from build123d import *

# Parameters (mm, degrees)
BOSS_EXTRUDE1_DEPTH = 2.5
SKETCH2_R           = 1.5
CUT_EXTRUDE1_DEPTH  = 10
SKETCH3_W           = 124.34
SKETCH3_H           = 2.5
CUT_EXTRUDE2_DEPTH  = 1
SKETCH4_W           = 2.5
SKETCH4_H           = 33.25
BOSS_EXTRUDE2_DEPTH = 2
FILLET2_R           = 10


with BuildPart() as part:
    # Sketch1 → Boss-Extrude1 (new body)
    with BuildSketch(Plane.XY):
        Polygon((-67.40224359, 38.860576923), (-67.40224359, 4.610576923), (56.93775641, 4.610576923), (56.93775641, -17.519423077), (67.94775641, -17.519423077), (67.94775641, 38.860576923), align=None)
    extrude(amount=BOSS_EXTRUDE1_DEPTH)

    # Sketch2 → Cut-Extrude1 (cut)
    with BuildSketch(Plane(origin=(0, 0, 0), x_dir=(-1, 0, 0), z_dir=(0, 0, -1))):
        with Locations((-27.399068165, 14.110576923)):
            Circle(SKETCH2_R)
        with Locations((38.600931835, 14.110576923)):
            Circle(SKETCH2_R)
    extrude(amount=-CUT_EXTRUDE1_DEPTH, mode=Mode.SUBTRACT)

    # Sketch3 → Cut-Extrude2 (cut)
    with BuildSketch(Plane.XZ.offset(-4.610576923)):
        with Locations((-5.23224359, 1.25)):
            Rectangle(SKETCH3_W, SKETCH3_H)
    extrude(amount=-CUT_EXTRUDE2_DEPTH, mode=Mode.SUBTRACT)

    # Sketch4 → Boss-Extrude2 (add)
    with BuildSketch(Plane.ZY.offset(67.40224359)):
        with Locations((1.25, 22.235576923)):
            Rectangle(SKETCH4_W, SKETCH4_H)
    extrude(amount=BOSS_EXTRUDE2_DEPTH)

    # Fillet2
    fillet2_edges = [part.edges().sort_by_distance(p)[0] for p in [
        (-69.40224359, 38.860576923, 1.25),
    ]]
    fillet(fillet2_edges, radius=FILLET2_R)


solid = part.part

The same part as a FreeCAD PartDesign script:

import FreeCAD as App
import Part
import Sketcher

V = App.Vector


def edges_at(feature, points):
    """Names of the edges that pass closest to the given points."""
    edges = feature.Shape.Edges
    near = lambda p: min(range(len(edges)), key=lambda i: edges[i].distToShape(Part.Vertex(*p))[0])
    return sorted({f"Edge{near(p) + 1}" for p in points})

doc = App.newDocument("Part")
body = doc.addObject("PartDesign::Body", "Body")

# Sketch on XY plane
sketch1 = body.newObject("Sketcher::SketchObject", "Sketch")
sketch1.AttachmentSupport = (doc.getObject("XY_Plane"), [""])
sketch1.MapMode = "FlatFace"
sketch1.addGeometry(Part.LineSegment(V(-67, 39, 0), V(-67, 5, 0)), False)
sketch1.addGeometry(Part.LineSegment(V(-67, 5, 0), V(57, 5, 0)), False)
sketch1.addGeometry(Part.LineSegment(V(57, 5, 0), V(57, -18, 0)), False)
sketch1.addGeometry(Part.LineSegment(V(57, -18, 0), V(68, -18, 0)), False)
sketch1.addGeometry(Part.LineSegment(V(68, -18, 0), V(68, 39, 0)), False)
sketch1.addGeometry(Part.LineSegment(V(68, 39, 0), V(-67, 39, 0)), False)
sketch1.addConstraint(Sketcher.Constraint("Coincident", 0, 2, 1, 1))
sketch1.addConstraint(Sketcher.Constraint("Coincident", 1, 2, 2, 1))
sketch1.addConstraint(Sketcher.Constraint("Coincident", 2, 2, 3, 1))
sketch1.addConstraint(Sketcher.Constraint("Coincident", 3, 2, 4, 1))
sketch1.addConstraint(Sketcher.Constraint("Coincident", 4, 2, 5, 1))
sketch1.addConstraint(Sketcher.Constraint("Coincident", 5, 2, 0, 1))
sketch1.addConstraint(Sketcher.Constraint("Vertical", 0))
sketch1.addConstraint(Sketcher.Constraint("Horizontal", 1))
sketch1.addConstraint(Sketcher.Constraint("Vertical", 2))
sketch1.addConstraint(Sketcher.Constraint("Horizontal", 3))
sketch1.addConstraint(Sketcher.Constraint("Vertical", 4))
sketch1.addConstraint(Sketcher.Constraint("Horizontal", 5))
sketch1.addConstraint(Sketcher.Constraint("DistanceX", 1, 1, 1, 2, 124.34))
sketch1.addConstraint(Sketcher.Constraint("DistanceX", 3, 1, 3, 2, 11.01))
sketch1.addConstraint(Sketcher.Constraint("DistanceY", 0, 2, 0, 1, 34.25))
sketch1.addConstraint(Sketcher.Constraint("DistanceY", 2, 2, 2, 1, 22.13))
sketch1.addConstraint(Sketcher.Constraint("DistanceX", 0, 2, -1, 1, 67.402244))
sketch1.addConstraint(Sketcher.Constraint("DistanceY", -1, 1, 0, 2, 4.610577))
pad1 = body.newObject("PartDesign::Pad", "Pad")
pad1.Profile = sketch1
pad1.Length = 2.5

# Sketch on XY plane
sketch2 = body.newObject("Sketcher::SketchObject", "Sketch001")
sketch2.AttachmentSupport = (doc.getObject("XY_Plane"), [""])
sketch2.MapMode = "FlatFace"
sketch2.addGeometry(Part.Circle(V(27.4, 14.1, 0), V(0, 0, 1), 1.5), False)
sketch2.addGeometry(Part.Circle(V(-38.6, 14.1, 0), V(0, 0, 1), 1.5), False)
sketch2.addConstraint(Sketcher.Constraint("Equal", 0, 1))
sketch2.addConstraint(Sketcher.Constraint("Horizontal", 0, 3, 1, 3))
sketch2.addConstraint(Sketcher.Constraint("Diameter", 0, 3.0))
sketch2.addConstraint(Sketcher.Constraint("DistanceX", 1, 3, 0, 3, 66.0))
sketch2.addConstraint(Sketcher.Constraint("DistanceX", -1, 1, 0, 3, 27.399068))
sketch2.addConstraint(Sketcher.Constraint("DistanceY", -1, 1, 0, 3, 14.110577))
pocket1 = body.newObject("PartDesign::Pocket", "Pocket")
pocket1.Profile = sketch2
pocket1.Length = 10
pocket1.Reversed = True

# Sketch on XZ plane
sketch3 = body.newObject("Sketcher::SketchObject", "Sketch002")
sketch3.AttachmentSupport = (doc.getObject("XZ_Plane"), [""])
sketch3.MapMode = "FlatFace"
sketch3.AttachmentOffset = App.Placement(V(0, 0, -4.610577), App.Rotation())
sketch3.addGeometry(Part.LineSegment(V(-67.4, 2.5, 0), V(-67.4, 0, 0)), False)
sketch3.addGeometry(Part.LineSegment(V(-67.4, 0, 0), V(56.9, 0, 0)), False)
sketch3.addGeometry(Part.LineSegment(V(56.9, 0, 0), V(56.9, 2.5, 0)), False)
sketch3.addGeometry(Part.LineSegment(V(56.9, 2.5, 0), V(-67.4, 2.5, 0)), False)
sketch3.addConstraint(Sketcher.Constraint("Coincident", 0, 2, 1, 1))
sketch3.addConstraint(Sketcher.Constraint("Coincident", 1, 2, 2, 1))
sketch3.addConstraint(Sketcher.Constraint("Coincident", 2, 2, 3, 1))
sketch3.addConstraint(Sketcher.Constraint("Coincident", 3, 2, 0, 1))
sketch3.addConstraint(Sketcher.Constraint("Vertical", 0))
sketch3.addConstraint(Sketcher.Constraint("Horizontal", 1))
sketch3.addConstraint(Sketcher.Constraint("Vertical", 2))
sketch3.addConstraint(Sketcher.Constraint("Horizontal", 3))
sketch3.addConstraint(Sketcher.Constraint("PointOnObject", 0, 2, -1))
sketch3.addConstraint(Sketcher.Constraint("DistanceY", 0, 2, 0, 1, 2.5))
sketch3.addConstraint(Sketcher.Constraint("DistanceX", 1, 1, 1, 2, 124.34))
sketch3.addConstraint(Sketcher.Constraint("DistanceX", 0, 2, -1, 1, 67.402244))
pocket2 = body.newObject("PartDesign::Pocket", "Pocket001")
pocket2.Profile = sketch3
pocket2.Length = 1

# Sketch on YZ plane
sketch4 = body.newObject("Sketcher::SketchObject", "Sketch003")
sketch4.AttachmentSupport = (doc.getObject("YZ_Plane"), [""])
sketch4.MapMode = "FlatFace"
sketch4.AttachmentOffset = App.Placement(V(0, 0, -67.402244), App.Rotation())
sketch4.addGeometry(Part.LineSegment(V(38.9, 0, 0), V(5.6, 0, 0)), False)
sketch4.addGeometry(Part.LineSegment(V(5.6, 0, 0), V(5.6, 2.5, 0)), False)
sketch4.addGeometry(Part.LineSegment(V(5.6, 2.5, 0), V(38.9, 2.5, 0)), False)
sketch4.addGeometry(Part.LineSegment(V(38.9, 2.5, 0), V(38.9, 0, 0)), False)
sketch4.addConstraint(Sketcher.Constraint("Coincident", 0, 2, 1, 1))
sketch4.addConstraint(Sketcher.Constraint("Coincident", 1, 2, 2, 1))
sketch4.addConstraint(Sketcher.Constraint("Coincident", 2, 2, 3, 1))
sketch4.addConstraint(Sketcher.Constraint("Coincident", 3, 2, 0, 1))
sketch4.addConstraint(Sketcher.Constraint("Horizontal", 0))
sketch4.addConstraint(Sketcher.Constraint("Vertical", 1))
sketch4.addConstraint(Sketcher.Constraint("Horizontal", 2))
sketch4.addConstraint(Sketcher.Constraint("Vertical", 3))
sketch4.addConstraint(Sketcher.Constraint("PointOnObject", 0, 2, -1))
sketch4.addConstraint(Sketcher.Constraint("DistanceY", 1, 1, 1, 2, 2.5))
sketch4.addConstraint(Sketcher.Constraint("DistanceX", 0, 2, 0, 1, 33.25))
sketch4.addConstraint(Sketcher.Constraint("DistanceX", -1, 1, 0, 2, 5.610577))
pad2 = body.newObject("PartDesign::Pad", "Pad001")
pad2.Profile = sketch4
pad2.Length = 2
pad2.Reversed = True
doc.recompute()

fillet = body.newObject("PartDesign::Fillet", "Fillet")
fillet.Base = (pad2, edges_at(pad2, [(-69.402, 38.861, 1.25)]))
fillet.Radius = 10

doc.recompute()
